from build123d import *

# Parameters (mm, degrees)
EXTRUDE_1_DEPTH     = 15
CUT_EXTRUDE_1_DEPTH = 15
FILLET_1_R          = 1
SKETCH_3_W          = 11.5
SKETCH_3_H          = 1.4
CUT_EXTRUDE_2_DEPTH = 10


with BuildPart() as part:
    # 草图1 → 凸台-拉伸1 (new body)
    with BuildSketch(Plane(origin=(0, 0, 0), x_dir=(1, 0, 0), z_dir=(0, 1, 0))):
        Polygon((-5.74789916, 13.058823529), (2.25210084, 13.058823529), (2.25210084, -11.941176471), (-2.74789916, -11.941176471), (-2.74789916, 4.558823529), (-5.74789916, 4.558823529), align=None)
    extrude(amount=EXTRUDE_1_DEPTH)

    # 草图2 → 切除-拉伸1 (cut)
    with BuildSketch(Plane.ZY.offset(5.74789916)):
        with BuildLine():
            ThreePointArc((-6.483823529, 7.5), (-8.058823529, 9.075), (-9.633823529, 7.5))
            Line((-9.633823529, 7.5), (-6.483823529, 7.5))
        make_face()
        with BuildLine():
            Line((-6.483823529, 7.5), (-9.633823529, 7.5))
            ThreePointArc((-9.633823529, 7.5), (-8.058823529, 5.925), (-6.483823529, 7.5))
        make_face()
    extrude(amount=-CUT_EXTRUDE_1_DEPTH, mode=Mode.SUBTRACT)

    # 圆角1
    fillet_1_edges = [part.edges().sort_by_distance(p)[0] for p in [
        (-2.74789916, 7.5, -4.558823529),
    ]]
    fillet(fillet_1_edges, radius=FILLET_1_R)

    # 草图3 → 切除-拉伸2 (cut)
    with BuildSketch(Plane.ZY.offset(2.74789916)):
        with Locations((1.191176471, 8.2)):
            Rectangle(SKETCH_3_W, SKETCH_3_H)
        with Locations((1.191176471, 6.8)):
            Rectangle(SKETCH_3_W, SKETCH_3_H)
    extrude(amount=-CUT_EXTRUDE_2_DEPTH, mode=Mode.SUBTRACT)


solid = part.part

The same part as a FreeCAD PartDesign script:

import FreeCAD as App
import Part
import Sketcher
from FreeCAD import Vector
Q = App.Units.Quantity


def edges_at(feature, points):
    """Names of the edges that pass closest to the given points."""
    edges = feature.Shape.Edges
    near = lambda p: min(range(len(edges)), key=lambda i: edges[i].distToShape(Part.Vertex(*p))[0])
    return sorted({f"Edge{near(p) + 1}" for p in points})

doc = App.newDocument("Part")
body = doc.addObject("PartDesign::Body", "Body")

# Sketch on XZ plane
sketch1 = doc.addObject("Sketcher::SketchObject", "Sketch")
body.addObject(sketch1)
sketch1.AttachmentSupport = (doc.XZ_Plane, [""])
sketch1.MapMode = "FlatFace"
sketch1.addGeometry([
    Part.LineSegment(Vector(2.252101, -13.058824, 0), Vector(-5.747899, -13.058824, 0)),  # 0
    Part.LineSegment(Vector(-5.747899, -13.058824, 0), Vector(-5.747899, -4.558824, 0)),  # 1
    Part.LineSegment(Vector(-5.747899, -4.558824, 0), Vector(-2.747899, -4.558824, 0)),  # 2
    Part.LineSegment(Vector(-2.747899, -4.558824, 0), Vector(-2.747899, 11.941176, 0)),  # 3
    Part.LineSegment(Vector(-2.747899, 11.941176, 0), Vector(2.252101, 11.941176, 0)),  # 4
    Part.LineSegment(Vector(2.252101, 11.941176, 0), Vector(2.252101, -13.058824, 0)),  # 5
], False)
sketch1.addConstraint([
    Sketcher.Constraint("Coincident", 0, 2, 1, 1),
    Sketcher.Constraint("Coincident", 1, 2, 2, 1),
    Sketcher.Constraint("Coincident", 2, 2, 3, 1),
    Sketcher.Constraint("Coincident", 3, 2, 4, 1),
    Sketcher.Constraint("Coincident", 4, 2, 5, 1),
    Sketcher.Constraint("Coincident", 5, 2, 0, 1),
    Sketcher.Constraint("Horizontal", 0),
    Sketcher.Constraint("Vertical", 1),
    Sketcher.Constraint("Horizontal", 2),
    Sketcher.Constraint("Vertical", 3),
    Sketcher.Constraint("Horizontal", 4),
    Sketcher.Constraint("Vertical", 5),
    Sketcher.Constraint("DistanceX", 0, 2, 0, 1, Q("8 mm")),
    Sketcher.Constraint("DistanceX", 2, 1, 2, 2, Q("3 mm")),
    Sketcher.Constraint("DistanceY", 5, 2, 5, 1, Q("25 mm")),
    Sketcher.Constraint("DistanceY", 1, 1, 1, 2, Q("8.5 mm")),
    Sketcher.Constraint("DistanceX", 0, 2, -1, 1, Q("5.747899 mm")),
    Sketcher.Constraint("DistanceY", 0, 2, -1, 1, Q("13.058824 mm")),
])
pad1 = doc.addObject("PartDesign::Pad", "Pad")
body.addObject(pad1)
pad1.Profile = sketch1
pad1.Length = 15
pad1.Reversed = True

# Sketch on YZ plane
sketch2 = doc.addObject("Sketcher::SketchObject", "Sketch001")
body.addObject(sketch2)
sketch2.AttachmentSupport = (doc.YZ_Plane, [""])
sketch2.MapMode = "FlatFace"
sketch2.AttachmentOffset = App.Placement(Vector(0, 0, -5.747899), App.Rotation())
sketch2.addGeometry(Part.Circle(Vector(7.5, -8.058824, 0), Vector(0, 0, 1), 1.575), False)
sketch2.addConstraint([
    Sketcher.Constraint("Diameter", 0, Q("3.15 mm")),
    Sketcher.Constraint("DistanceX", -1, 1, 0, 3, Q("7.5 mm")),
    Sketcher.Constraint("DistanceY", 0, 3, -1, 1, Q("8.058824 mm")),
])
pocket1 = doc.addObject("PartDesign::Pocket", "Pocket")
body.addObject(pocket1)
pocket1.Profile = sketch2
pocket1.Length = 15
pocket1.Reversed = True
doc.recompute()

fillet = doc.addObject("PartDesign::Fillet", "Fillet")
body.addObject(fillet)
fillet.Base = (pocket1, edges_at(pocket1, [(-2.748, 7.5, -4.559)]))
fillet.Radius = 1

# Sketch on YZ plane
sketch3 = doc.addObject("Sketcher::SketchObject", "Sketch002")
body.addObject(sketch3)
sketch3.AttachmentSupport = (doc.YZ_Plane, [""])
sketch3.MapMode = "FlatFace"
sketch3.AttachmentOffset = App.Placement(Vector(0, 0, -2.747899), App.Rotation())
sketch3.addGeometry([
    Part.LineSegment(Vector(8.9, -4.558824, 0), Vector(6.1, -4.558824, 0)),
    Part.LineSegment(Vector(6.1, -4.558824, 0), Vector(6.1, 6.941176, 0)),
    Part.LineSegment(Vector(6.1, 6.941176, 0), Vector(8.9, 6.941176, 0)),
    Part.LineSegment(Vector(8.9, 6.941176, 0), Vector(8.9, -4.558824, 0)),
], False)
sketch3.addConstraint([
    Sketcher.Constraint("Coincident", 0, 2, 1, 1),
    Sketcher.Constraint("Coincident", 1, 2, 2, 1),
    Sketcher.Constraint("Coincident", 2, 2, 3, 1),
    Sketcher.Constraint("Coincident", 3, 2, 0, 1),
    Sketcher.Constraint("Horizontal", 0),
    Sketcher.Constraint("Vertical", 1),
    Sketcher.Constraint("Horizontal", 2),
    Sketcher.Constraint("Vertical", 3),
    Sketcher.Constraint("DistanceX", 0, 2, 0, 1, Q("2.8 mm")),
    Sketcher.Constraint("DistanceY", 1, 1, 1, 2, Q("11.5 mm")),
    Sketcher.Constraint("DistanceX", -1, 1, 0, 2, Q("6.1 mm")),
    Sketcher.Constraint("DistanceY", 0, 2, -1, 1, Q("4.558824 mm")),
])
pocket2 = doc.addObject("PartDesign::Pocket", "Pocket001")
body.addObject(pocket2)
pocket2.Profile = sketch3
pocket2.Length = 10
pocket2.Reversed = True

doc.recompute()
